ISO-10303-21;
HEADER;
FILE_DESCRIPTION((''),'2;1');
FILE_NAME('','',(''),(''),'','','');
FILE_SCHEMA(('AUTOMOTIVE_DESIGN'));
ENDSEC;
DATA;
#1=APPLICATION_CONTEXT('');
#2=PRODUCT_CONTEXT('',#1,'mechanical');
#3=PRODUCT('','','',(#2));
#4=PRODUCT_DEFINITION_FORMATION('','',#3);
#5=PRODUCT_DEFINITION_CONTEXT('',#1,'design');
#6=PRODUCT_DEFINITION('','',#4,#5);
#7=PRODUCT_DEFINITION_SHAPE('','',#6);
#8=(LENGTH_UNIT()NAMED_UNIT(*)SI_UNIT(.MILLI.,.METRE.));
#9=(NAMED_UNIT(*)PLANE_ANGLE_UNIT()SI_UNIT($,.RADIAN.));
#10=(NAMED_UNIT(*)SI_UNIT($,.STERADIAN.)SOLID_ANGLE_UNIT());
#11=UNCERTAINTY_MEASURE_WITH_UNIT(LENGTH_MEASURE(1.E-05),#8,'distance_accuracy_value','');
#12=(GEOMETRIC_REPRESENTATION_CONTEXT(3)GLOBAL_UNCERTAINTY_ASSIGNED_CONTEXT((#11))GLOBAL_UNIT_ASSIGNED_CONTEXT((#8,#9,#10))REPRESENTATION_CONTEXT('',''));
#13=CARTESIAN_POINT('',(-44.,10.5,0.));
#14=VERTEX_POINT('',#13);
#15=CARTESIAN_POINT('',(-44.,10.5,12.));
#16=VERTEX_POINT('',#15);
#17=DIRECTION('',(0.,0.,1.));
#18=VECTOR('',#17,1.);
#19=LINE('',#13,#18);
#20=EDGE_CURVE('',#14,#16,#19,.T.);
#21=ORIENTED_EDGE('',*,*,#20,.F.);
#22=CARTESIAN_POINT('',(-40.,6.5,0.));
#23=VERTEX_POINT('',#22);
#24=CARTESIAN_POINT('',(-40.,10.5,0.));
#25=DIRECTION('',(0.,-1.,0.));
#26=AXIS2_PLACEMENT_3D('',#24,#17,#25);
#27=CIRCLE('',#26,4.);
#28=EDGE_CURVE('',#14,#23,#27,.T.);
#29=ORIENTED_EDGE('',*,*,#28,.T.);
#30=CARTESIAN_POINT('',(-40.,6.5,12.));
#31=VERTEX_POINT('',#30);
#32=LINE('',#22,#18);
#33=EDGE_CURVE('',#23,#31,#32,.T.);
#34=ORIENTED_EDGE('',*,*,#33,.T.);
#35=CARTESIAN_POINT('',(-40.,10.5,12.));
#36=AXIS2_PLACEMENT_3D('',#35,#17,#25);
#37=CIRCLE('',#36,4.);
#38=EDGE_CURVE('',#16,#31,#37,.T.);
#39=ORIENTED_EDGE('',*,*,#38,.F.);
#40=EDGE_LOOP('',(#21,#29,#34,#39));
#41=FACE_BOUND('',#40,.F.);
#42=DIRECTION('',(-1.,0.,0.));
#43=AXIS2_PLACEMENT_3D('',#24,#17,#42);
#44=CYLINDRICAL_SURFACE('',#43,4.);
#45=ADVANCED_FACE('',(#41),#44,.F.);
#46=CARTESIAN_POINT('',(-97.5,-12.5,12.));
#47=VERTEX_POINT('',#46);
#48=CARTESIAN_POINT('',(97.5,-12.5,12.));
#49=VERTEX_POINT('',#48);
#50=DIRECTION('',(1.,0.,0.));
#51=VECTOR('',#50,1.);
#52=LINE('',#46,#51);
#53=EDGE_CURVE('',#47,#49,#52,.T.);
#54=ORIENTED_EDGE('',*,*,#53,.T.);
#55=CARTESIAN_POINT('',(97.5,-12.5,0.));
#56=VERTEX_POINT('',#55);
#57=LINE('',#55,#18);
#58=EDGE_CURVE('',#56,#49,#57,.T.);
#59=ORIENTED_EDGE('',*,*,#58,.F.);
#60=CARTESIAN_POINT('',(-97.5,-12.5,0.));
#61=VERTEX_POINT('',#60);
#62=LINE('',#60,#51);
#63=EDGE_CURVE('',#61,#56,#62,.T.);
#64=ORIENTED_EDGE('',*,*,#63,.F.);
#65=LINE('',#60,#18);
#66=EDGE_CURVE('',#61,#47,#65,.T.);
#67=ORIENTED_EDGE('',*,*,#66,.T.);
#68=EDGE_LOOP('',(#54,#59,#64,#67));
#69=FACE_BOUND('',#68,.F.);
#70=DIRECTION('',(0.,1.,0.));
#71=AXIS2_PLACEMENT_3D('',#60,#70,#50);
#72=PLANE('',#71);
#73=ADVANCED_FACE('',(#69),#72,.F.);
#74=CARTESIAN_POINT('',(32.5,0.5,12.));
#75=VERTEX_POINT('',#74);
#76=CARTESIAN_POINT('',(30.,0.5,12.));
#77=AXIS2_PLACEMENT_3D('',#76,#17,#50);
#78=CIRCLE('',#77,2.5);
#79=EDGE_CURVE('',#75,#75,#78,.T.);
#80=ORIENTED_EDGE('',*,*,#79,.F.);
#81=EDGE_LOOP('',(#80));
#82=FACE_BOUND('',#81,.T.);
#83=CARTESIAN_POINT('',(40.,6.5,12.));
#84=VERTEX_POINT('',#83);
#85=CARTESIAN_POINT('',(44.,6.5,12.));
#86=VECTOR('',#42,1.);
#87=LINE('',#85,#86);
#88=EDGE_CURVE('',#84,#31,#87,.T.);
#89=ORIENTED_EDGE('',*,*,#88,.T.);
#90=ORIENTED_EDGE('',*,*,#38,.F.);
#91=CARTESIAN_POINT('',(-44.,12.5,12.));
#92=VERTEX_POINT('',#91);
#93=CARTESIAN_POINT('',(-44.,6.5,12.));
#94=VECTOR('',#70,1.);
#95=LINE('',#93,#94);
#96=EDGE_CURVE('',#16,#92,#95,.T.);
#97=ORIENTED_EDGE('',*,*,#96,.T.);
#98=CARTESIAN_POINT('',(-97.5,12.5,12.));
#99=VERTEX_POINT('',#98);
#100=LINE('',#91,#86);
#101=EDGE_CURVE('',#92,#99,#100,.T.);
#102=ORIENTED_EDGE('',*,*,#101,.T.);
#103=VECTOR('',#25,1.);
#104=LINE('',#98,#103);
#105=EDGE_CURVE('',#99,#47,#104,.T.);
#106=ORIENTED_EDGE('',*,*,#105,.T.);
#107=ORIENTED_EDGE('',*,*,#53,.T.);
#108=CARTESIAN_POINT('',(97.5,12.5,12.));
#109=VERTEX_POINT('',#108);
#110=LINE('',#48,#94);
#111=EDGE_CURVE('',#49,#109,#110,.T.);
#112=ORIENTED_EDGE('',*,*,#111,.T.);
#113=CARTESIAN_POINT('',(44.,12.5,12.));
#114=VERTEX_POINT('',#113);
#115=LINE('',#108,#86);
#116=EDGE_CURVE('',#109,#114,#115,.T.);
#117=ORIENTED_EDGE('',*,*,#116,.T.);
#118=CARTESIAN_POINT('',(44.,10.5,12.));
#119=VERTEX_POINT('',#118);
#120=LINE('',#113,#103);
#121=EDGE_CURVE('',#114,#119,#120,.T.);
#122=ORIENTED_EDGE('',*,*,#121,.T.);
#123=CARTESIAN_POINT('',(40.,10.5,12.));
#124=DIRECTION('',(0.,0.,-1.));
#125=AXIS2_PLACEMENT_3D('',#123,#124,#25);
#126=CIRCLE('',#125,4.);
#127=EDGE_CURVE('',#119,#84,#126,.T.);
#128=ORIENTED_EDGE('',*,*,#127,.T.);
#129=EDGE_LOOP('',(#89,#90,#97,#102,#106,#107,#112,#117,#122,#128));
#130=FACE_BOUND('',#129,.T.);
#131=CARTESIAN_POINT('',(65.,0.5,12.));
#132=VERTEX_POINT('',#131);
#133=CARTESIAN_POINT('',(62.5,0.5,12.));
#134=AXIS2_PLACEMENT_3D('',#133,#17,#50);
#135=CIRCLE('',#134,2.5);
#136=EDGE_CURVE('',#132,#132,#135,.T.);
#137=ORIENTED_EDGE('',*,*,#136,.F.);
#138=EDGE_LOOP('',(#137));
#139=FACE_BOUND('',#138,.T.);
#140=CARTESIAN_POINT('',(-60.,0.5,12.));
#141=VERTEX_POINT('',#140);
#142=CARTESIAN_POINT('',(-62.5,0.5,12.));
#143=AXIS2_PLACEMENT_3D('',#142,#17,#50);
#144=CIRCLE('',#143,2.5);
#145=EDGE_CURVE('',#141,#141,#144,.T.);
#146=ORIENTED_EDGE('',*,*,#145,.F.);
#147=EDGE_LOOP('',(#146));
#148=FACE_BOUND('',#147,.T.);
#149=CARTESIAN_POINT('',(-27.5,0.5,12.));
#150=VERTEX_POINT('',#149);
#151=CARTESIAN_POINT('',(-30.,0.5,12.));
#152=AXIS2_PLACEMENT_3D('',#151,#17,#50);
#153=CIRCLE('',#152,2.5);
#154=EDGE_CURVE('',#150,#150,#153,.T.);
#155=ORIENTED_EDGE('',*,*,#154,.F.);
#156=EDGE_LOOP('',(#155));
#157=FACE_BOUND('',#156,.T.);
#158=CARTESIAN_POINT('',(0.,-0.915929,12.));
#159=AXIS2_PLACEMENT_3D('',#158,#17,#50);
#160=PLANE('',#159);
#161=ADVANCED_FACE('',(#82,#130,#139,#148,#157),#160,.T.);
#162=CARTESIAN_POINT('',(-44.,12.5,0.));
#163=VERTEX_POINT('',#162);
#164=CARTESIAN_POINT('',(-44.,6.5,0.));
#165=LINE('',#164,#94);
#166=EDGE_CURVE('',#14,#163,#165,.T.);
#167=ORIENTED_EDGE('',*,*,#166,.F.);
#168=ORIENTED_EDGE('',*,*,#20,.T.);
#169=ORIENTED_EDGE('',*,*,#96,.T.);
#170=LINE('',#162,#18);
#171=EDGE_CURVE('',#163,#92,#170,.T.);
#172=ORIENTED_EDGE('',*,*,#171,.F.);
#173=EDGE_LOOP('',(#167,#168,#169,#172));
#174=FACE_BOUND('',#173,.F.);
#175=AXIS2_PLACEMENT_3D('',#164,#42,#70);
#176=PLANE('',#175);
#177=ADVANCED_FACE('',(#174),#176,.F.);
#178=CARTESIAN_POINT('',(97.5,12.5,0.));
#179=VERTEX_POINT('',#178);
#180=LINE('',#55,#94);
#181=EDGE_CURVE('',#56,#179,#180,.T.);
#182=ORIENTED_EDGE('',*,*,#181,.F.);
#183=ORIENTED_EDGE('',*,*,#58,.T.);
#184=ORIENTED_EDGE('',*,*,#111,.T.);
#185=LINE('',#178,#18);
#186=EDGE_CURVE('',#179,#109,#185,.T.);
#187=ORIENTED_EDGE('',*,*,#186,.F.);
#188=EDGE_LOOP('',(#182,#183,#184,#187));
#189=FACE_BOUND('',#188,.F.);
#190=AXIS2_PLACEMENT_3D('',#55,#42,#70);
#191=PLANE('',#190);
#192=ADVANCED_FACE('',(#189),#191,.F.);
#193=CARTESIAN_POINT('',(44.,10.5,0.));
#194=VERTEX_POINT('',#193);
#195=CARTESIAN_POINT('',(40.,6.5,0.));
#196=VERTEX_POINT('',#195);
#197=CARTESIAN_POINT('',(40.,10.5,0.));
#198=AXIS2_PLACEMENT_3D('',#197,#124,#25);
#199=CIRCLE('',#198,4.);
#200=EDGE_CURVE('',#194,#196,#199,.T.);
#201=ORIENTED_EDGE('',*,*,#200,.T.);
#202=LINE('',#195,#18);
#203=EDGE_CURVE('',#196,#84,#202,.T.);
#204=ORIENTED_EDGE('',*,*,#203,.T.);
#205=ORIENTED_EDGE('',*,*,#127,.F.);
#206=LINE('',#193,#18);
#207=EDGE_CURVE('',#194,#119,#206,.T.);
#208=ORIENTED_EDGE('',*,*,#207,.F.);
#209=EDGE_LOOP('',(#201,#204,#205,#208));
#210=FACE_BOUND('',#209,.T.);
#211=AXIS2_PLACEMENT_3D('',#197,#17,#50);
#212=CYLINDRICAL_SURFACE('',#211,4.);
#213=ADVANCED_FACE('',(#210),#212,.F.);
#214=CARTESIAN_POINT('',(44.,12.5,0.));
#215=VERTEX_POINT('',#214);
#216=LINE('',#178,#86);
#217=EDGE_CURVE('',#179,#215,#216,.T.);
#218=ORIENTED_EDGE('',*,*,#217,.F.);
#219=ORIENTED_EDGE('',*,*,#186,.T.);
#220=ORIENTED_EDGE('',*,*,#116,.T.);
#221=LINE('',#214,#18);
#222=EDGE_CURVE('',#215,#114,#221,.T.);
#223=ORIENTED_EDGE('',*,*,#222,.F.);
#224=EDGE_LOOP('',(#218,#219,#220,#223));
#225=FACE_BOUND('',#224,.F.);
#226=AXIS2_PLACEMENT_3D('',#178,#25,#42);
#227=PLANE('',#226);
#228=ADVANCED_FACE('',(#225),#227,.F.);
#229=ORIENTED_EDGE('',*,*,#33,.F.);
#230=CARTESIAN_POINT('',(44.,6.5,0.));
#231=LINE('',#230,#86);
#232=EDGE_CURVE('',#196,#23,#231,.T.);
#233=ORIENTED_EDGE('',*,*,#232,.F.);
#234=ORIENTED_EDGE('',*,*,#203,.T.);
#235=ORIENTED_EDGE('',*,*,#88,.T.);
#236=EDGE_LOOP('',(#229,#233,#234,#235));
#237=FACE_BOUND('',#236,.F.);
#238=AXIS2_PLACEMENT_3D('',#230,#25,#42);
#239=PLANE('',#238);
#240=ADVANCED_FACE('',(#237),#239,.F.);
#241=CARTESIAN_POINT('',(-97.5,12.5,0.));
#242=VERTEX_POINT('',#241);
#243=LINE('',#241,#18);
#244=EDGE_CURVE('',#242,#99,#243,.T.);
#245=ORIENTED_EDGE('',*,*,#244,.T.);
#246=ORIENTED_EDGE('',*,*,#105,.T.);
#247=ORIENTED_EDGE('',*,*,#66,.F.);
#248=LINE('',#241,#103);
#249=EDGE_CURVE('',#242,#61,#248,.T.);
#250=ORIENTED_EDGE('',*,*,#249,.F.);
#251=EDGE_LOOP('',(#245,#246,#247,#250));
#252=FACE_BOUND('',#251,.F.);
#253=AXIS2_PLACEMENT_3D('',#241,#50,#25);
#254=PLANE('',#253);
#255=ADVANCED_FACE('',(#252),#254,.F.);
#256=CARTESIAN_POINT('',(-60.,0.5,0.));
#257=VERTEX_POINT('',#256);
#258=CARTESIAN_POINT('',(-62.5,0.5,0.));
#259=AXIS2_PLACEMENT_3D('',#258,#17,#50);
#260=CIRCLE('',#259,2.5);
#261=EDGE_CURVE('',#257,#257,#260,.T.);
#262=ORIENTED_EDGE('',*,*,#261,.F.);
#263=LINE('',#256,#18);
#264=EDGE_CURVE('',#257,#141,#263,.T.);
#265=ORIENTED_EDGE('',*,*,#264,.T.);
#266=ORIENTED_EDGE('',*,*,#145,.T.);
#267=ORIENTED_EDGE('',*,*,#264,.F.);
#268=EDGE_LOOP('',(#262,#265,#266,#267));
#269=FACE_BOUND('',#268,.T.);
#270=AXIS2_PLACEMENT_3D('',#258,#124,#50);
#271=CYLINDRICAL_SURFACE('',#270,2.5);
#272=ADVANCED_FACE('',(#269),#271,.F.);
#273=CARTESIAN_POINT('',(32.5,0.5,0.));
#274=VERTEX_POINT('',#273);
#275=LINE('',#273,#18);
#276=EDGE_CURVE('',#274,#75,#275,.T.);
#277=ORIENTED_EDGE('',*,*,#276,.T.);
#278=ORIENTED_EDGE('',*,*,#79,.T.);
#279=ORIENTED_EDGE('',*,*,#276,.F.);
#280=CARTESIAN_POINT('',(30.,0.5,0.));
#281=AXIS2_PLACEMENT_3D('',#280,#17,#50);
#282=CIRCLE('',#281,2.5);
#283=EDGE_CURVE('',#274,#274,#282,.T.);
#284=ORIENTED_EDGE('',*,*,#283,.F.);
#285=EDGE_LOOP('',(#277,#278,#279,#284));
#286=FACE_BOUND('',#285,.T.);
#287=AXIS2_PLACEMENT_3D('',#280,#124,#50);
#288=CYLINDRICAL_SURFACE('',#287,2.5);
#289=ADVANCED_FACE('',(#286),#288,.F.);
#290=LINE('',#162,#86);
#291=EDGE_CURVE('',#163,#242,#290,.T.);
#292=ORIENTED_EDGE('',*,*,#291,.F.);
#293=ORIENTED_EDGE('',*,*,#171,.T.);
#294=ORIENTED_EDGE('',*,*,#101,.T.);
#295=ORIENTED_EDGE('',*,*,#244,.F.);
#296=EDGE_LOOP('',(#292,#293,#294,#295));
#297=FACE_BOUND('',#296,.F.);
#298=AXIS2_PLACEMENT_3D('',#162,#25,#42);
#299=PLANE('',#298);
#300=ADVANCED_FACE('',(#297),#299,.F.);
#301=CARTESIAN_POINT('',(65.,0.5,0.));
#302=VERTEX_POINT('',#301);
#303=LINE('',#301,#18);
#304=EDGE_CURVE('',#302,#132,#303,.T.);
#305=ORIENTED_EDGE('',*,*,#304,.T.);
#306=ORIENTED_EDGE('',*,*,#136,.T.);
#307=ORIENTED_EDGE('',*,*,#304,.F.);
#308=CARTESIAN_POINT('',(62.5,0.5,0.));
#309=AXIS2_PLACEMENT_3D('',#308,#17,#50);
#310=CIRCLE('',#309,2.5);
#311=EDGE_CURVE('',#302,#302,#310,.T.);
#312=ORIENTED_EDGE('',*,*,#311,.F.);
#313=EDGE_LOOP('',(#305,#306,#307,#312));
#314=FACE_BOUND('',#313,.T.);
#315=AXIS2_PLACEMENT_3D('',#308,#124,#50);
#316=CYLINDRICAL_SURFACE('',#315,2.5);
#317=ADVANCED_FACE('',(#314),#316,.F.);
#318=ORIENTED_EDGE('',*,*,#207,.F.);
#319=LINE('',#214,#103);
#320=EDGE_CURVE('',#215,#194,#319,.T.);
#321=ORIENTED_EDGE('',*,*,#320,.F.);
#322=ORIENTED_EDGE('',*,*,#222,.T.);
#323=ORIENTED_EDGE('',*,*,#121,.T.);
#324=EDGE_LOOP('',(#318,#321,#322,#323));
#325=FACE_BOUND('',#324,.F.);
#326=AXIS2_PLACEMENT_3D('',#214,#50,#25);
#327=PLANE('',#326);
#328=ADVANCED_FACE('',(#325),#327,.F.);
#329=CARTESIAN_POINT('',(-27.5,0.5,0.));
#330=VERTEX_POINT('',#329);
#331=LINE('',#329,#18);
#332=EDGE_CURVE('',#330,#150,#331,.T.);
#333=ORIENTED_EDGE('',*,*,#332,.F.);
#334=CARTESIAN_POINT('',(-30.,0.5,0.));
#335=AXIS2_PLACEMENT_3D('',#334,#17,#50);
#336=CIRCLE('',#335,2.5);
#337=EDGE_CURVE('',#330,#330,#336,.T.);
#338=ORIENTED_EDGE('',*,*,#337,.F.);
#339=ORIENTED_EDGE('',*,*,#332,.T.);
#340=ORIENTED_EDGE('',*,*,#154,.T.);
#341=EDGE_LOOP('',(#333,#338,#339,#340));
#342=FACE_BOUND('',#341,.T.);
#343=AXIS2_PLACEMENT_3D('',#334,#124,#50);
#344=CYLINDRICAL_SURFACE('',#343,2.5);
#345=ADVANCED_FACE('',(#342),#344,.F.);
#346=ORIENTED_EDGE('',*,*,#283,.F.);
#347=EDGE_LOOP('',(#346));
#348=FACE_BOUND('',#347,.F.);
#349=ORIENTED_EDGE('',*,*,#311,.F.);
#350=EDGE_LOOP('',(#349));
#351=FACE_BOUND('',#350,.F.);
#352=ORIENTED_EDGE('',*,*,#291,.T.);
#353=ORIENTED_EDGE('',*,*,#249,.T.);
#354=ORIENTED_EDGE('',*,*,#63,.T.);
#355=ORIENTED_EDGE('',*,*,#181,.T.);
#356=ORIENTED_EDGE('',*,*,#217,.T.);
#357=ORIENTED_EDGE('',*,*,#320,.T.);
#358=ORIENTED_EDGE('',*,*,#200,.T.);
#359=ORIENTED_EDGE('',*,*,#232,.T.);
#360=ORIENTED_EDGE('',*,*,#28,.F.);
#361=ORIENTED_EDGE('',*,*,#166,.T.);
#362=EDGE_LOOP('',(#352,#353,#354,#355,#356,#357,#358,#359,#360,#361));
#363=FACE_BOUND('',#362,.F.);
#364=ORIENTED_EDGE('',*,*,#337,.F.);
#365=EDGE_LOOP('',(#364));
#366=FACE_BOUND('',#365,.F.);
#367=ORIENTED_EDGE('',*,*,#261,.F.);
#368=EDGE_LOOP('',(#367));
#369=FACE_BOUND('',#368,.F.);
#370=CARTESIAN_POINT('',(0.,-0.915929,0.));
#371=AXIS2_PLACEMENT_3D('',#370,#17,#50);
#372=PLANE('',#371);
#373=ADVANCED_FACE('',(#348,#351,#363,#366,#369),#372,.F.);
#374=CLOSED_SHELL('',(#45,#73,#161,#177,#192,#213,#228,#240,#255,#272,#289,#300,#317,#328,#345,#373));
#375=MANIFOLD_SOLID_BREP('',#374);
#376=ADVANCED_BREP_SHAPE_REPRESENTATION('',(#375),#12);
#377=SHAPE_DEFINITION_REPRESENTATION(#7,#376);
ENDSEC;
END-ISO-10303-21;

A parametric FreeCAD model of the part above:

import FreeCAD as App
import Part
import Sketcher


def edges_at(feature, points):
    """Names of the edges that pass closest to the given points."""
    edges = feature.Shape.Edges
    near = lambda p: min(range(len(edges)), key=lambda i: edges[i].distToShape(Part.Vertex(*p))[0])
    return sorted({f"Edge{near(p) + 1}" for p in points})


def add_polygon(sketch, points):
    """Adds a closed chain of lines whose ends are joined by coincident constraints."""
    first, n = sketch.GeometryCount, len(points)
    for a, b in zip(points, points[1:] + points[:1]):
        sketch.addGeometry(Part.LineSegment(App.Vector(*a, 0), App.Vector(*b, 0)), False)
    for i in range(n):
        sketch.addConstraint(Sketcher.Constraint("Coincident", first + i, 2, first + (i + 1) % n, 1))

doc = App.newDocument("Part")
params = doc.addObject("Spreadsheet::Sheet", "Params")
for row, (alias, value) in enumerate([
    ("sketch1_diameter", "5 mm"),
    ("sketch1_width", "195 mm"),
    ("sketch1_width2", "88 mm"),
    ("sketch1_height", "25 mm"),
    ("sketch1_height2", "6 mm"),
    ("pad1_length", "12 mm"),
    ("fillet_radius", "4 mm"),
], start=1):
    params.set(f"A{row}", alias)
    params.set(f"B{row}", "=" + value)
    params.setAlias(f"B{row}", alias)

body = doc.addObject("PartDesign::Body", "Body")

# Sketch on XY plane
sketch1 = doc.addObject("Sketcher::SketchObject", "Sketch")
body.addObject(sketch1)
sketch1.AttachmentSupport = (doc.XY_Plane, [""])
sketch1.MapMode = "FlatFace"
add_polygon(sketch1, [(-97.5, -12.5), (97.5, -12.5), (97.5, 12.5), (44, 12.5), (44, 6.5), (-44, 6.5), (-44, 12.5), (-97.5, 12.5)])  # lines 0-7
sketch1.addGeometry(Part.Circle(App.Vector(-62.5, 0.5, 0), App.Vector(0, 0, 1), 2.5), False)  # 8
sketch1.addGeometry(Part.Circle(App.Vector(-30, 0.5, 0), App.Vector(0, 0, 1), 2.5), False)  # 9
sketch1.addGeometry(Part.Circle(App.Vector(30, 0.5, 0), App.Vector(0, 0, 1), 2.5), False)  # 10
sketch1.addGeometry(Part.Circle(App.Vector(62.5, 0.5, 0), App.Vector(0, 0, 1), 2.5), False)  # 11
sketch1.addConstraint([
    Sketcher.Constraint("Horizontal", 0),
    Sketcher.Constraint("Vertical", 1),
    Sketcher.Constraint("Horizontal", 2),
    Sketcher.Constraint("Vertical", 3),
    Sketcher.Constraint("Horizontal", 4),
    Sketcher.Constraint("Vertical", 5),
    Sketcher.Constraint("Horizontal", 6),
    Sketcher.Constraint("Vertical", 7),
    Sketcher.Constraint("Equal", 8, 9),
    Sketcher.Constraint("Equal", 9, 10),
    Sketcher.Constraint("Equal", 10, 11),
    Sketcher.Constraint("Symmetric", 0, 2, 6, 2, -1, 1),
    Sketcher.Constraint("Symmetric", 9, 3, 10, 3, -2),
    Sketcher.Constraint("Symmetric", 8, 3, 11, 3, -2),
    Sketcher.Constraint("Symmetric", 2, 2, 5, 2, -2),
    Sketcher.Constraint("Horizontal", 8, 3, 9, 3),
    Sketcher.Constraint("Diameter", 8, 5.0),
    Sketcher.Constraint("DistanceX", 0, 1, 0, 2, 195.0),
    Sketcher.Constraint("DistanceX", 4, 2, 4, 1, 88.0),
    Sketcher.Constraint("DistanceY", 1, 1, 1, 2, 25.0),
    Sketcher.Constraint("DistanceY", 3, 2, 3, 1, 6.0),
    Sketcher.Constraint("DistanceX", 9, 3, -1, 1, 30.0),
    Sketcher.Constraint("DistanceX", 8, 3, 11, 3, 125.0),
    Sketcher.Constraint("DistanceY", 0, 2, 11, 3, 13.0),
])
sketch1.setExpression("Constraints[24]", "Params.sketch1_diameter")
sketch1.setExpression("Constraints[25]", "Params.sketch1_width")
sketch1.setExpression("Constraints[26]", "Params.sketch1_width2")
sketch1.setExpression("Constraints[27]", "Params.sketch1_height")
sketch1.setExpression("Constraints[28]", "Params.sketch1_height2")
pad1 = doc.addObject("PartDesign::Pad", "Pad")
body.addObject(pad1)
pad1.Profile = sketch1
pad1.setExpression("Length", "Params.pad1_length")
doc.recompute()

fillet = doc.addObject("PartDesign::Fillet", "Fillet")
body.addObject(fillet)
fillet.Base = (pad1, edges_at(pad1, [(-44, 6.5, 6), (44, 6.5, 6)]))
fillet.setExpression("Radius", "Params.fillet_radius")

doc.recompute()
